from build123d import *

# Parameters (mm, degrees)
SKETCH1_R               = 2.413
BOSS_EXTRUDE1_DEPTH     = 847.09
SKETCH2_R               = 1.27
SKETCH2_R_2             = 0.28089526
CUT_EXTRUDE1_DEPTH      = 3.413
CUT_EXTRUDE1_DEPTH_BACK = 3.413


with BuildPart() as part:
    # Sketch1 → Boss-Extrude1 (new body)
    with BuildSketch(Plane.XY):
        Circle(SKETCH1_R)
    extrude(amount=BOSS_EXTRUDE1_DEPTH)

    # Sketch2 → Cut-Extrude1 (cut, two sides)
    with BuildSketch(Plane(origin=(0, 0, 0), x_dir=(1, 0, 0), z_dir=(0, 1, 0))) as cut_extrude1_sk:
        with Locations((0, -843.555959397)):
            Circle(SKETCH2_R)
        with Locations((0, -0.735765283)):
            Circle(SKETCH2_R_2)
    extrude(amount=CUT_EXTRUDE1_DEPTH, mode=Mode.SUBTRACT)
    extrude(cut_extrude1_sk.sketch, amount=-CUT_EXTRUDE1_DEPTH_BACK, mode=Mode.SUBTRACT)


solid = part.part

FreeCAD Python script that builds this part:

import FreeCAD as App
import Part
import Sketcher

V = App.Vector
Q = App.Units.Quantity

doc = App.newDocument("Part")
body = doc.addObject("PartDesign::Body", "Body")

# Sketch on XY plane
sketch1 = doc.addObject("Sketcher::SketchObject", "Sketch")
body.addObject(sketch1)
sketch1.AttachmentSupport = (doc.XY_Plane, [""])
sketch1.MapMode = "FlatFace"
sketch1.addGeometry(Part.Circle(V(0, 0, 0), V(0, 0, 1), 2.4), False)
sketch1.addConstraint([
    Sketcher.Constraint("Coincident", 0, 3, -1, 1),
    Sketcher.Constraint("Diameter", 0, Q("0.19 in")),
])
pad1 = doc.addObject("PartDesign::Pad", "Pad")
body.addObject(pad1)
pad1.Profile = sketch1
pad1.Length = Q("33.35 in")

# Sketch on XZ plane
sketch2 = doc.addObject("Sketcher::SketchObject", "Sketch001")
body.addObject(sketch2)
sketch2.AttachmentSupport = (doc.XZ_Plane, [""])
sketch2.MapMode = "FlatFace"
sketch2.addGeometry([
    Part.Circle(V(0, 843.56, 0), V(0, 0, 1), 1.27),
    Part.Circle(V(0, 0.74, 0), V(0, 0, 1), 0.28),
], False)
sketch2.addConstraint([
    Sketcher.Constraint("PointOnObject", 0, 3, -2),
    Sketcher.Constraint("PointOnObject", 1, 3, -2),
    Sketcher.Constraint("Diameter", 0, Q("0.1 in")),
    Sketcher.Constraint("Diameter", 1, Q("0.561791 mm")),
    Sketcher.Constraint("DistanceY", -1, 1, 0, 3, Q("843.555959 mm")),
    Sketcher.Constraint("DistanceY", -1, 1, 1, 3, Q("0.735765 mm")),
])
pocket1 = doc.addObject("PartDesign::Pocket", "Pocket")
body.addObject(pocket1)
pocket1.Profile = sketch2
pocket1.Type = "ThroughAll"
pocket1.Midplane = True

doc.recompute()
